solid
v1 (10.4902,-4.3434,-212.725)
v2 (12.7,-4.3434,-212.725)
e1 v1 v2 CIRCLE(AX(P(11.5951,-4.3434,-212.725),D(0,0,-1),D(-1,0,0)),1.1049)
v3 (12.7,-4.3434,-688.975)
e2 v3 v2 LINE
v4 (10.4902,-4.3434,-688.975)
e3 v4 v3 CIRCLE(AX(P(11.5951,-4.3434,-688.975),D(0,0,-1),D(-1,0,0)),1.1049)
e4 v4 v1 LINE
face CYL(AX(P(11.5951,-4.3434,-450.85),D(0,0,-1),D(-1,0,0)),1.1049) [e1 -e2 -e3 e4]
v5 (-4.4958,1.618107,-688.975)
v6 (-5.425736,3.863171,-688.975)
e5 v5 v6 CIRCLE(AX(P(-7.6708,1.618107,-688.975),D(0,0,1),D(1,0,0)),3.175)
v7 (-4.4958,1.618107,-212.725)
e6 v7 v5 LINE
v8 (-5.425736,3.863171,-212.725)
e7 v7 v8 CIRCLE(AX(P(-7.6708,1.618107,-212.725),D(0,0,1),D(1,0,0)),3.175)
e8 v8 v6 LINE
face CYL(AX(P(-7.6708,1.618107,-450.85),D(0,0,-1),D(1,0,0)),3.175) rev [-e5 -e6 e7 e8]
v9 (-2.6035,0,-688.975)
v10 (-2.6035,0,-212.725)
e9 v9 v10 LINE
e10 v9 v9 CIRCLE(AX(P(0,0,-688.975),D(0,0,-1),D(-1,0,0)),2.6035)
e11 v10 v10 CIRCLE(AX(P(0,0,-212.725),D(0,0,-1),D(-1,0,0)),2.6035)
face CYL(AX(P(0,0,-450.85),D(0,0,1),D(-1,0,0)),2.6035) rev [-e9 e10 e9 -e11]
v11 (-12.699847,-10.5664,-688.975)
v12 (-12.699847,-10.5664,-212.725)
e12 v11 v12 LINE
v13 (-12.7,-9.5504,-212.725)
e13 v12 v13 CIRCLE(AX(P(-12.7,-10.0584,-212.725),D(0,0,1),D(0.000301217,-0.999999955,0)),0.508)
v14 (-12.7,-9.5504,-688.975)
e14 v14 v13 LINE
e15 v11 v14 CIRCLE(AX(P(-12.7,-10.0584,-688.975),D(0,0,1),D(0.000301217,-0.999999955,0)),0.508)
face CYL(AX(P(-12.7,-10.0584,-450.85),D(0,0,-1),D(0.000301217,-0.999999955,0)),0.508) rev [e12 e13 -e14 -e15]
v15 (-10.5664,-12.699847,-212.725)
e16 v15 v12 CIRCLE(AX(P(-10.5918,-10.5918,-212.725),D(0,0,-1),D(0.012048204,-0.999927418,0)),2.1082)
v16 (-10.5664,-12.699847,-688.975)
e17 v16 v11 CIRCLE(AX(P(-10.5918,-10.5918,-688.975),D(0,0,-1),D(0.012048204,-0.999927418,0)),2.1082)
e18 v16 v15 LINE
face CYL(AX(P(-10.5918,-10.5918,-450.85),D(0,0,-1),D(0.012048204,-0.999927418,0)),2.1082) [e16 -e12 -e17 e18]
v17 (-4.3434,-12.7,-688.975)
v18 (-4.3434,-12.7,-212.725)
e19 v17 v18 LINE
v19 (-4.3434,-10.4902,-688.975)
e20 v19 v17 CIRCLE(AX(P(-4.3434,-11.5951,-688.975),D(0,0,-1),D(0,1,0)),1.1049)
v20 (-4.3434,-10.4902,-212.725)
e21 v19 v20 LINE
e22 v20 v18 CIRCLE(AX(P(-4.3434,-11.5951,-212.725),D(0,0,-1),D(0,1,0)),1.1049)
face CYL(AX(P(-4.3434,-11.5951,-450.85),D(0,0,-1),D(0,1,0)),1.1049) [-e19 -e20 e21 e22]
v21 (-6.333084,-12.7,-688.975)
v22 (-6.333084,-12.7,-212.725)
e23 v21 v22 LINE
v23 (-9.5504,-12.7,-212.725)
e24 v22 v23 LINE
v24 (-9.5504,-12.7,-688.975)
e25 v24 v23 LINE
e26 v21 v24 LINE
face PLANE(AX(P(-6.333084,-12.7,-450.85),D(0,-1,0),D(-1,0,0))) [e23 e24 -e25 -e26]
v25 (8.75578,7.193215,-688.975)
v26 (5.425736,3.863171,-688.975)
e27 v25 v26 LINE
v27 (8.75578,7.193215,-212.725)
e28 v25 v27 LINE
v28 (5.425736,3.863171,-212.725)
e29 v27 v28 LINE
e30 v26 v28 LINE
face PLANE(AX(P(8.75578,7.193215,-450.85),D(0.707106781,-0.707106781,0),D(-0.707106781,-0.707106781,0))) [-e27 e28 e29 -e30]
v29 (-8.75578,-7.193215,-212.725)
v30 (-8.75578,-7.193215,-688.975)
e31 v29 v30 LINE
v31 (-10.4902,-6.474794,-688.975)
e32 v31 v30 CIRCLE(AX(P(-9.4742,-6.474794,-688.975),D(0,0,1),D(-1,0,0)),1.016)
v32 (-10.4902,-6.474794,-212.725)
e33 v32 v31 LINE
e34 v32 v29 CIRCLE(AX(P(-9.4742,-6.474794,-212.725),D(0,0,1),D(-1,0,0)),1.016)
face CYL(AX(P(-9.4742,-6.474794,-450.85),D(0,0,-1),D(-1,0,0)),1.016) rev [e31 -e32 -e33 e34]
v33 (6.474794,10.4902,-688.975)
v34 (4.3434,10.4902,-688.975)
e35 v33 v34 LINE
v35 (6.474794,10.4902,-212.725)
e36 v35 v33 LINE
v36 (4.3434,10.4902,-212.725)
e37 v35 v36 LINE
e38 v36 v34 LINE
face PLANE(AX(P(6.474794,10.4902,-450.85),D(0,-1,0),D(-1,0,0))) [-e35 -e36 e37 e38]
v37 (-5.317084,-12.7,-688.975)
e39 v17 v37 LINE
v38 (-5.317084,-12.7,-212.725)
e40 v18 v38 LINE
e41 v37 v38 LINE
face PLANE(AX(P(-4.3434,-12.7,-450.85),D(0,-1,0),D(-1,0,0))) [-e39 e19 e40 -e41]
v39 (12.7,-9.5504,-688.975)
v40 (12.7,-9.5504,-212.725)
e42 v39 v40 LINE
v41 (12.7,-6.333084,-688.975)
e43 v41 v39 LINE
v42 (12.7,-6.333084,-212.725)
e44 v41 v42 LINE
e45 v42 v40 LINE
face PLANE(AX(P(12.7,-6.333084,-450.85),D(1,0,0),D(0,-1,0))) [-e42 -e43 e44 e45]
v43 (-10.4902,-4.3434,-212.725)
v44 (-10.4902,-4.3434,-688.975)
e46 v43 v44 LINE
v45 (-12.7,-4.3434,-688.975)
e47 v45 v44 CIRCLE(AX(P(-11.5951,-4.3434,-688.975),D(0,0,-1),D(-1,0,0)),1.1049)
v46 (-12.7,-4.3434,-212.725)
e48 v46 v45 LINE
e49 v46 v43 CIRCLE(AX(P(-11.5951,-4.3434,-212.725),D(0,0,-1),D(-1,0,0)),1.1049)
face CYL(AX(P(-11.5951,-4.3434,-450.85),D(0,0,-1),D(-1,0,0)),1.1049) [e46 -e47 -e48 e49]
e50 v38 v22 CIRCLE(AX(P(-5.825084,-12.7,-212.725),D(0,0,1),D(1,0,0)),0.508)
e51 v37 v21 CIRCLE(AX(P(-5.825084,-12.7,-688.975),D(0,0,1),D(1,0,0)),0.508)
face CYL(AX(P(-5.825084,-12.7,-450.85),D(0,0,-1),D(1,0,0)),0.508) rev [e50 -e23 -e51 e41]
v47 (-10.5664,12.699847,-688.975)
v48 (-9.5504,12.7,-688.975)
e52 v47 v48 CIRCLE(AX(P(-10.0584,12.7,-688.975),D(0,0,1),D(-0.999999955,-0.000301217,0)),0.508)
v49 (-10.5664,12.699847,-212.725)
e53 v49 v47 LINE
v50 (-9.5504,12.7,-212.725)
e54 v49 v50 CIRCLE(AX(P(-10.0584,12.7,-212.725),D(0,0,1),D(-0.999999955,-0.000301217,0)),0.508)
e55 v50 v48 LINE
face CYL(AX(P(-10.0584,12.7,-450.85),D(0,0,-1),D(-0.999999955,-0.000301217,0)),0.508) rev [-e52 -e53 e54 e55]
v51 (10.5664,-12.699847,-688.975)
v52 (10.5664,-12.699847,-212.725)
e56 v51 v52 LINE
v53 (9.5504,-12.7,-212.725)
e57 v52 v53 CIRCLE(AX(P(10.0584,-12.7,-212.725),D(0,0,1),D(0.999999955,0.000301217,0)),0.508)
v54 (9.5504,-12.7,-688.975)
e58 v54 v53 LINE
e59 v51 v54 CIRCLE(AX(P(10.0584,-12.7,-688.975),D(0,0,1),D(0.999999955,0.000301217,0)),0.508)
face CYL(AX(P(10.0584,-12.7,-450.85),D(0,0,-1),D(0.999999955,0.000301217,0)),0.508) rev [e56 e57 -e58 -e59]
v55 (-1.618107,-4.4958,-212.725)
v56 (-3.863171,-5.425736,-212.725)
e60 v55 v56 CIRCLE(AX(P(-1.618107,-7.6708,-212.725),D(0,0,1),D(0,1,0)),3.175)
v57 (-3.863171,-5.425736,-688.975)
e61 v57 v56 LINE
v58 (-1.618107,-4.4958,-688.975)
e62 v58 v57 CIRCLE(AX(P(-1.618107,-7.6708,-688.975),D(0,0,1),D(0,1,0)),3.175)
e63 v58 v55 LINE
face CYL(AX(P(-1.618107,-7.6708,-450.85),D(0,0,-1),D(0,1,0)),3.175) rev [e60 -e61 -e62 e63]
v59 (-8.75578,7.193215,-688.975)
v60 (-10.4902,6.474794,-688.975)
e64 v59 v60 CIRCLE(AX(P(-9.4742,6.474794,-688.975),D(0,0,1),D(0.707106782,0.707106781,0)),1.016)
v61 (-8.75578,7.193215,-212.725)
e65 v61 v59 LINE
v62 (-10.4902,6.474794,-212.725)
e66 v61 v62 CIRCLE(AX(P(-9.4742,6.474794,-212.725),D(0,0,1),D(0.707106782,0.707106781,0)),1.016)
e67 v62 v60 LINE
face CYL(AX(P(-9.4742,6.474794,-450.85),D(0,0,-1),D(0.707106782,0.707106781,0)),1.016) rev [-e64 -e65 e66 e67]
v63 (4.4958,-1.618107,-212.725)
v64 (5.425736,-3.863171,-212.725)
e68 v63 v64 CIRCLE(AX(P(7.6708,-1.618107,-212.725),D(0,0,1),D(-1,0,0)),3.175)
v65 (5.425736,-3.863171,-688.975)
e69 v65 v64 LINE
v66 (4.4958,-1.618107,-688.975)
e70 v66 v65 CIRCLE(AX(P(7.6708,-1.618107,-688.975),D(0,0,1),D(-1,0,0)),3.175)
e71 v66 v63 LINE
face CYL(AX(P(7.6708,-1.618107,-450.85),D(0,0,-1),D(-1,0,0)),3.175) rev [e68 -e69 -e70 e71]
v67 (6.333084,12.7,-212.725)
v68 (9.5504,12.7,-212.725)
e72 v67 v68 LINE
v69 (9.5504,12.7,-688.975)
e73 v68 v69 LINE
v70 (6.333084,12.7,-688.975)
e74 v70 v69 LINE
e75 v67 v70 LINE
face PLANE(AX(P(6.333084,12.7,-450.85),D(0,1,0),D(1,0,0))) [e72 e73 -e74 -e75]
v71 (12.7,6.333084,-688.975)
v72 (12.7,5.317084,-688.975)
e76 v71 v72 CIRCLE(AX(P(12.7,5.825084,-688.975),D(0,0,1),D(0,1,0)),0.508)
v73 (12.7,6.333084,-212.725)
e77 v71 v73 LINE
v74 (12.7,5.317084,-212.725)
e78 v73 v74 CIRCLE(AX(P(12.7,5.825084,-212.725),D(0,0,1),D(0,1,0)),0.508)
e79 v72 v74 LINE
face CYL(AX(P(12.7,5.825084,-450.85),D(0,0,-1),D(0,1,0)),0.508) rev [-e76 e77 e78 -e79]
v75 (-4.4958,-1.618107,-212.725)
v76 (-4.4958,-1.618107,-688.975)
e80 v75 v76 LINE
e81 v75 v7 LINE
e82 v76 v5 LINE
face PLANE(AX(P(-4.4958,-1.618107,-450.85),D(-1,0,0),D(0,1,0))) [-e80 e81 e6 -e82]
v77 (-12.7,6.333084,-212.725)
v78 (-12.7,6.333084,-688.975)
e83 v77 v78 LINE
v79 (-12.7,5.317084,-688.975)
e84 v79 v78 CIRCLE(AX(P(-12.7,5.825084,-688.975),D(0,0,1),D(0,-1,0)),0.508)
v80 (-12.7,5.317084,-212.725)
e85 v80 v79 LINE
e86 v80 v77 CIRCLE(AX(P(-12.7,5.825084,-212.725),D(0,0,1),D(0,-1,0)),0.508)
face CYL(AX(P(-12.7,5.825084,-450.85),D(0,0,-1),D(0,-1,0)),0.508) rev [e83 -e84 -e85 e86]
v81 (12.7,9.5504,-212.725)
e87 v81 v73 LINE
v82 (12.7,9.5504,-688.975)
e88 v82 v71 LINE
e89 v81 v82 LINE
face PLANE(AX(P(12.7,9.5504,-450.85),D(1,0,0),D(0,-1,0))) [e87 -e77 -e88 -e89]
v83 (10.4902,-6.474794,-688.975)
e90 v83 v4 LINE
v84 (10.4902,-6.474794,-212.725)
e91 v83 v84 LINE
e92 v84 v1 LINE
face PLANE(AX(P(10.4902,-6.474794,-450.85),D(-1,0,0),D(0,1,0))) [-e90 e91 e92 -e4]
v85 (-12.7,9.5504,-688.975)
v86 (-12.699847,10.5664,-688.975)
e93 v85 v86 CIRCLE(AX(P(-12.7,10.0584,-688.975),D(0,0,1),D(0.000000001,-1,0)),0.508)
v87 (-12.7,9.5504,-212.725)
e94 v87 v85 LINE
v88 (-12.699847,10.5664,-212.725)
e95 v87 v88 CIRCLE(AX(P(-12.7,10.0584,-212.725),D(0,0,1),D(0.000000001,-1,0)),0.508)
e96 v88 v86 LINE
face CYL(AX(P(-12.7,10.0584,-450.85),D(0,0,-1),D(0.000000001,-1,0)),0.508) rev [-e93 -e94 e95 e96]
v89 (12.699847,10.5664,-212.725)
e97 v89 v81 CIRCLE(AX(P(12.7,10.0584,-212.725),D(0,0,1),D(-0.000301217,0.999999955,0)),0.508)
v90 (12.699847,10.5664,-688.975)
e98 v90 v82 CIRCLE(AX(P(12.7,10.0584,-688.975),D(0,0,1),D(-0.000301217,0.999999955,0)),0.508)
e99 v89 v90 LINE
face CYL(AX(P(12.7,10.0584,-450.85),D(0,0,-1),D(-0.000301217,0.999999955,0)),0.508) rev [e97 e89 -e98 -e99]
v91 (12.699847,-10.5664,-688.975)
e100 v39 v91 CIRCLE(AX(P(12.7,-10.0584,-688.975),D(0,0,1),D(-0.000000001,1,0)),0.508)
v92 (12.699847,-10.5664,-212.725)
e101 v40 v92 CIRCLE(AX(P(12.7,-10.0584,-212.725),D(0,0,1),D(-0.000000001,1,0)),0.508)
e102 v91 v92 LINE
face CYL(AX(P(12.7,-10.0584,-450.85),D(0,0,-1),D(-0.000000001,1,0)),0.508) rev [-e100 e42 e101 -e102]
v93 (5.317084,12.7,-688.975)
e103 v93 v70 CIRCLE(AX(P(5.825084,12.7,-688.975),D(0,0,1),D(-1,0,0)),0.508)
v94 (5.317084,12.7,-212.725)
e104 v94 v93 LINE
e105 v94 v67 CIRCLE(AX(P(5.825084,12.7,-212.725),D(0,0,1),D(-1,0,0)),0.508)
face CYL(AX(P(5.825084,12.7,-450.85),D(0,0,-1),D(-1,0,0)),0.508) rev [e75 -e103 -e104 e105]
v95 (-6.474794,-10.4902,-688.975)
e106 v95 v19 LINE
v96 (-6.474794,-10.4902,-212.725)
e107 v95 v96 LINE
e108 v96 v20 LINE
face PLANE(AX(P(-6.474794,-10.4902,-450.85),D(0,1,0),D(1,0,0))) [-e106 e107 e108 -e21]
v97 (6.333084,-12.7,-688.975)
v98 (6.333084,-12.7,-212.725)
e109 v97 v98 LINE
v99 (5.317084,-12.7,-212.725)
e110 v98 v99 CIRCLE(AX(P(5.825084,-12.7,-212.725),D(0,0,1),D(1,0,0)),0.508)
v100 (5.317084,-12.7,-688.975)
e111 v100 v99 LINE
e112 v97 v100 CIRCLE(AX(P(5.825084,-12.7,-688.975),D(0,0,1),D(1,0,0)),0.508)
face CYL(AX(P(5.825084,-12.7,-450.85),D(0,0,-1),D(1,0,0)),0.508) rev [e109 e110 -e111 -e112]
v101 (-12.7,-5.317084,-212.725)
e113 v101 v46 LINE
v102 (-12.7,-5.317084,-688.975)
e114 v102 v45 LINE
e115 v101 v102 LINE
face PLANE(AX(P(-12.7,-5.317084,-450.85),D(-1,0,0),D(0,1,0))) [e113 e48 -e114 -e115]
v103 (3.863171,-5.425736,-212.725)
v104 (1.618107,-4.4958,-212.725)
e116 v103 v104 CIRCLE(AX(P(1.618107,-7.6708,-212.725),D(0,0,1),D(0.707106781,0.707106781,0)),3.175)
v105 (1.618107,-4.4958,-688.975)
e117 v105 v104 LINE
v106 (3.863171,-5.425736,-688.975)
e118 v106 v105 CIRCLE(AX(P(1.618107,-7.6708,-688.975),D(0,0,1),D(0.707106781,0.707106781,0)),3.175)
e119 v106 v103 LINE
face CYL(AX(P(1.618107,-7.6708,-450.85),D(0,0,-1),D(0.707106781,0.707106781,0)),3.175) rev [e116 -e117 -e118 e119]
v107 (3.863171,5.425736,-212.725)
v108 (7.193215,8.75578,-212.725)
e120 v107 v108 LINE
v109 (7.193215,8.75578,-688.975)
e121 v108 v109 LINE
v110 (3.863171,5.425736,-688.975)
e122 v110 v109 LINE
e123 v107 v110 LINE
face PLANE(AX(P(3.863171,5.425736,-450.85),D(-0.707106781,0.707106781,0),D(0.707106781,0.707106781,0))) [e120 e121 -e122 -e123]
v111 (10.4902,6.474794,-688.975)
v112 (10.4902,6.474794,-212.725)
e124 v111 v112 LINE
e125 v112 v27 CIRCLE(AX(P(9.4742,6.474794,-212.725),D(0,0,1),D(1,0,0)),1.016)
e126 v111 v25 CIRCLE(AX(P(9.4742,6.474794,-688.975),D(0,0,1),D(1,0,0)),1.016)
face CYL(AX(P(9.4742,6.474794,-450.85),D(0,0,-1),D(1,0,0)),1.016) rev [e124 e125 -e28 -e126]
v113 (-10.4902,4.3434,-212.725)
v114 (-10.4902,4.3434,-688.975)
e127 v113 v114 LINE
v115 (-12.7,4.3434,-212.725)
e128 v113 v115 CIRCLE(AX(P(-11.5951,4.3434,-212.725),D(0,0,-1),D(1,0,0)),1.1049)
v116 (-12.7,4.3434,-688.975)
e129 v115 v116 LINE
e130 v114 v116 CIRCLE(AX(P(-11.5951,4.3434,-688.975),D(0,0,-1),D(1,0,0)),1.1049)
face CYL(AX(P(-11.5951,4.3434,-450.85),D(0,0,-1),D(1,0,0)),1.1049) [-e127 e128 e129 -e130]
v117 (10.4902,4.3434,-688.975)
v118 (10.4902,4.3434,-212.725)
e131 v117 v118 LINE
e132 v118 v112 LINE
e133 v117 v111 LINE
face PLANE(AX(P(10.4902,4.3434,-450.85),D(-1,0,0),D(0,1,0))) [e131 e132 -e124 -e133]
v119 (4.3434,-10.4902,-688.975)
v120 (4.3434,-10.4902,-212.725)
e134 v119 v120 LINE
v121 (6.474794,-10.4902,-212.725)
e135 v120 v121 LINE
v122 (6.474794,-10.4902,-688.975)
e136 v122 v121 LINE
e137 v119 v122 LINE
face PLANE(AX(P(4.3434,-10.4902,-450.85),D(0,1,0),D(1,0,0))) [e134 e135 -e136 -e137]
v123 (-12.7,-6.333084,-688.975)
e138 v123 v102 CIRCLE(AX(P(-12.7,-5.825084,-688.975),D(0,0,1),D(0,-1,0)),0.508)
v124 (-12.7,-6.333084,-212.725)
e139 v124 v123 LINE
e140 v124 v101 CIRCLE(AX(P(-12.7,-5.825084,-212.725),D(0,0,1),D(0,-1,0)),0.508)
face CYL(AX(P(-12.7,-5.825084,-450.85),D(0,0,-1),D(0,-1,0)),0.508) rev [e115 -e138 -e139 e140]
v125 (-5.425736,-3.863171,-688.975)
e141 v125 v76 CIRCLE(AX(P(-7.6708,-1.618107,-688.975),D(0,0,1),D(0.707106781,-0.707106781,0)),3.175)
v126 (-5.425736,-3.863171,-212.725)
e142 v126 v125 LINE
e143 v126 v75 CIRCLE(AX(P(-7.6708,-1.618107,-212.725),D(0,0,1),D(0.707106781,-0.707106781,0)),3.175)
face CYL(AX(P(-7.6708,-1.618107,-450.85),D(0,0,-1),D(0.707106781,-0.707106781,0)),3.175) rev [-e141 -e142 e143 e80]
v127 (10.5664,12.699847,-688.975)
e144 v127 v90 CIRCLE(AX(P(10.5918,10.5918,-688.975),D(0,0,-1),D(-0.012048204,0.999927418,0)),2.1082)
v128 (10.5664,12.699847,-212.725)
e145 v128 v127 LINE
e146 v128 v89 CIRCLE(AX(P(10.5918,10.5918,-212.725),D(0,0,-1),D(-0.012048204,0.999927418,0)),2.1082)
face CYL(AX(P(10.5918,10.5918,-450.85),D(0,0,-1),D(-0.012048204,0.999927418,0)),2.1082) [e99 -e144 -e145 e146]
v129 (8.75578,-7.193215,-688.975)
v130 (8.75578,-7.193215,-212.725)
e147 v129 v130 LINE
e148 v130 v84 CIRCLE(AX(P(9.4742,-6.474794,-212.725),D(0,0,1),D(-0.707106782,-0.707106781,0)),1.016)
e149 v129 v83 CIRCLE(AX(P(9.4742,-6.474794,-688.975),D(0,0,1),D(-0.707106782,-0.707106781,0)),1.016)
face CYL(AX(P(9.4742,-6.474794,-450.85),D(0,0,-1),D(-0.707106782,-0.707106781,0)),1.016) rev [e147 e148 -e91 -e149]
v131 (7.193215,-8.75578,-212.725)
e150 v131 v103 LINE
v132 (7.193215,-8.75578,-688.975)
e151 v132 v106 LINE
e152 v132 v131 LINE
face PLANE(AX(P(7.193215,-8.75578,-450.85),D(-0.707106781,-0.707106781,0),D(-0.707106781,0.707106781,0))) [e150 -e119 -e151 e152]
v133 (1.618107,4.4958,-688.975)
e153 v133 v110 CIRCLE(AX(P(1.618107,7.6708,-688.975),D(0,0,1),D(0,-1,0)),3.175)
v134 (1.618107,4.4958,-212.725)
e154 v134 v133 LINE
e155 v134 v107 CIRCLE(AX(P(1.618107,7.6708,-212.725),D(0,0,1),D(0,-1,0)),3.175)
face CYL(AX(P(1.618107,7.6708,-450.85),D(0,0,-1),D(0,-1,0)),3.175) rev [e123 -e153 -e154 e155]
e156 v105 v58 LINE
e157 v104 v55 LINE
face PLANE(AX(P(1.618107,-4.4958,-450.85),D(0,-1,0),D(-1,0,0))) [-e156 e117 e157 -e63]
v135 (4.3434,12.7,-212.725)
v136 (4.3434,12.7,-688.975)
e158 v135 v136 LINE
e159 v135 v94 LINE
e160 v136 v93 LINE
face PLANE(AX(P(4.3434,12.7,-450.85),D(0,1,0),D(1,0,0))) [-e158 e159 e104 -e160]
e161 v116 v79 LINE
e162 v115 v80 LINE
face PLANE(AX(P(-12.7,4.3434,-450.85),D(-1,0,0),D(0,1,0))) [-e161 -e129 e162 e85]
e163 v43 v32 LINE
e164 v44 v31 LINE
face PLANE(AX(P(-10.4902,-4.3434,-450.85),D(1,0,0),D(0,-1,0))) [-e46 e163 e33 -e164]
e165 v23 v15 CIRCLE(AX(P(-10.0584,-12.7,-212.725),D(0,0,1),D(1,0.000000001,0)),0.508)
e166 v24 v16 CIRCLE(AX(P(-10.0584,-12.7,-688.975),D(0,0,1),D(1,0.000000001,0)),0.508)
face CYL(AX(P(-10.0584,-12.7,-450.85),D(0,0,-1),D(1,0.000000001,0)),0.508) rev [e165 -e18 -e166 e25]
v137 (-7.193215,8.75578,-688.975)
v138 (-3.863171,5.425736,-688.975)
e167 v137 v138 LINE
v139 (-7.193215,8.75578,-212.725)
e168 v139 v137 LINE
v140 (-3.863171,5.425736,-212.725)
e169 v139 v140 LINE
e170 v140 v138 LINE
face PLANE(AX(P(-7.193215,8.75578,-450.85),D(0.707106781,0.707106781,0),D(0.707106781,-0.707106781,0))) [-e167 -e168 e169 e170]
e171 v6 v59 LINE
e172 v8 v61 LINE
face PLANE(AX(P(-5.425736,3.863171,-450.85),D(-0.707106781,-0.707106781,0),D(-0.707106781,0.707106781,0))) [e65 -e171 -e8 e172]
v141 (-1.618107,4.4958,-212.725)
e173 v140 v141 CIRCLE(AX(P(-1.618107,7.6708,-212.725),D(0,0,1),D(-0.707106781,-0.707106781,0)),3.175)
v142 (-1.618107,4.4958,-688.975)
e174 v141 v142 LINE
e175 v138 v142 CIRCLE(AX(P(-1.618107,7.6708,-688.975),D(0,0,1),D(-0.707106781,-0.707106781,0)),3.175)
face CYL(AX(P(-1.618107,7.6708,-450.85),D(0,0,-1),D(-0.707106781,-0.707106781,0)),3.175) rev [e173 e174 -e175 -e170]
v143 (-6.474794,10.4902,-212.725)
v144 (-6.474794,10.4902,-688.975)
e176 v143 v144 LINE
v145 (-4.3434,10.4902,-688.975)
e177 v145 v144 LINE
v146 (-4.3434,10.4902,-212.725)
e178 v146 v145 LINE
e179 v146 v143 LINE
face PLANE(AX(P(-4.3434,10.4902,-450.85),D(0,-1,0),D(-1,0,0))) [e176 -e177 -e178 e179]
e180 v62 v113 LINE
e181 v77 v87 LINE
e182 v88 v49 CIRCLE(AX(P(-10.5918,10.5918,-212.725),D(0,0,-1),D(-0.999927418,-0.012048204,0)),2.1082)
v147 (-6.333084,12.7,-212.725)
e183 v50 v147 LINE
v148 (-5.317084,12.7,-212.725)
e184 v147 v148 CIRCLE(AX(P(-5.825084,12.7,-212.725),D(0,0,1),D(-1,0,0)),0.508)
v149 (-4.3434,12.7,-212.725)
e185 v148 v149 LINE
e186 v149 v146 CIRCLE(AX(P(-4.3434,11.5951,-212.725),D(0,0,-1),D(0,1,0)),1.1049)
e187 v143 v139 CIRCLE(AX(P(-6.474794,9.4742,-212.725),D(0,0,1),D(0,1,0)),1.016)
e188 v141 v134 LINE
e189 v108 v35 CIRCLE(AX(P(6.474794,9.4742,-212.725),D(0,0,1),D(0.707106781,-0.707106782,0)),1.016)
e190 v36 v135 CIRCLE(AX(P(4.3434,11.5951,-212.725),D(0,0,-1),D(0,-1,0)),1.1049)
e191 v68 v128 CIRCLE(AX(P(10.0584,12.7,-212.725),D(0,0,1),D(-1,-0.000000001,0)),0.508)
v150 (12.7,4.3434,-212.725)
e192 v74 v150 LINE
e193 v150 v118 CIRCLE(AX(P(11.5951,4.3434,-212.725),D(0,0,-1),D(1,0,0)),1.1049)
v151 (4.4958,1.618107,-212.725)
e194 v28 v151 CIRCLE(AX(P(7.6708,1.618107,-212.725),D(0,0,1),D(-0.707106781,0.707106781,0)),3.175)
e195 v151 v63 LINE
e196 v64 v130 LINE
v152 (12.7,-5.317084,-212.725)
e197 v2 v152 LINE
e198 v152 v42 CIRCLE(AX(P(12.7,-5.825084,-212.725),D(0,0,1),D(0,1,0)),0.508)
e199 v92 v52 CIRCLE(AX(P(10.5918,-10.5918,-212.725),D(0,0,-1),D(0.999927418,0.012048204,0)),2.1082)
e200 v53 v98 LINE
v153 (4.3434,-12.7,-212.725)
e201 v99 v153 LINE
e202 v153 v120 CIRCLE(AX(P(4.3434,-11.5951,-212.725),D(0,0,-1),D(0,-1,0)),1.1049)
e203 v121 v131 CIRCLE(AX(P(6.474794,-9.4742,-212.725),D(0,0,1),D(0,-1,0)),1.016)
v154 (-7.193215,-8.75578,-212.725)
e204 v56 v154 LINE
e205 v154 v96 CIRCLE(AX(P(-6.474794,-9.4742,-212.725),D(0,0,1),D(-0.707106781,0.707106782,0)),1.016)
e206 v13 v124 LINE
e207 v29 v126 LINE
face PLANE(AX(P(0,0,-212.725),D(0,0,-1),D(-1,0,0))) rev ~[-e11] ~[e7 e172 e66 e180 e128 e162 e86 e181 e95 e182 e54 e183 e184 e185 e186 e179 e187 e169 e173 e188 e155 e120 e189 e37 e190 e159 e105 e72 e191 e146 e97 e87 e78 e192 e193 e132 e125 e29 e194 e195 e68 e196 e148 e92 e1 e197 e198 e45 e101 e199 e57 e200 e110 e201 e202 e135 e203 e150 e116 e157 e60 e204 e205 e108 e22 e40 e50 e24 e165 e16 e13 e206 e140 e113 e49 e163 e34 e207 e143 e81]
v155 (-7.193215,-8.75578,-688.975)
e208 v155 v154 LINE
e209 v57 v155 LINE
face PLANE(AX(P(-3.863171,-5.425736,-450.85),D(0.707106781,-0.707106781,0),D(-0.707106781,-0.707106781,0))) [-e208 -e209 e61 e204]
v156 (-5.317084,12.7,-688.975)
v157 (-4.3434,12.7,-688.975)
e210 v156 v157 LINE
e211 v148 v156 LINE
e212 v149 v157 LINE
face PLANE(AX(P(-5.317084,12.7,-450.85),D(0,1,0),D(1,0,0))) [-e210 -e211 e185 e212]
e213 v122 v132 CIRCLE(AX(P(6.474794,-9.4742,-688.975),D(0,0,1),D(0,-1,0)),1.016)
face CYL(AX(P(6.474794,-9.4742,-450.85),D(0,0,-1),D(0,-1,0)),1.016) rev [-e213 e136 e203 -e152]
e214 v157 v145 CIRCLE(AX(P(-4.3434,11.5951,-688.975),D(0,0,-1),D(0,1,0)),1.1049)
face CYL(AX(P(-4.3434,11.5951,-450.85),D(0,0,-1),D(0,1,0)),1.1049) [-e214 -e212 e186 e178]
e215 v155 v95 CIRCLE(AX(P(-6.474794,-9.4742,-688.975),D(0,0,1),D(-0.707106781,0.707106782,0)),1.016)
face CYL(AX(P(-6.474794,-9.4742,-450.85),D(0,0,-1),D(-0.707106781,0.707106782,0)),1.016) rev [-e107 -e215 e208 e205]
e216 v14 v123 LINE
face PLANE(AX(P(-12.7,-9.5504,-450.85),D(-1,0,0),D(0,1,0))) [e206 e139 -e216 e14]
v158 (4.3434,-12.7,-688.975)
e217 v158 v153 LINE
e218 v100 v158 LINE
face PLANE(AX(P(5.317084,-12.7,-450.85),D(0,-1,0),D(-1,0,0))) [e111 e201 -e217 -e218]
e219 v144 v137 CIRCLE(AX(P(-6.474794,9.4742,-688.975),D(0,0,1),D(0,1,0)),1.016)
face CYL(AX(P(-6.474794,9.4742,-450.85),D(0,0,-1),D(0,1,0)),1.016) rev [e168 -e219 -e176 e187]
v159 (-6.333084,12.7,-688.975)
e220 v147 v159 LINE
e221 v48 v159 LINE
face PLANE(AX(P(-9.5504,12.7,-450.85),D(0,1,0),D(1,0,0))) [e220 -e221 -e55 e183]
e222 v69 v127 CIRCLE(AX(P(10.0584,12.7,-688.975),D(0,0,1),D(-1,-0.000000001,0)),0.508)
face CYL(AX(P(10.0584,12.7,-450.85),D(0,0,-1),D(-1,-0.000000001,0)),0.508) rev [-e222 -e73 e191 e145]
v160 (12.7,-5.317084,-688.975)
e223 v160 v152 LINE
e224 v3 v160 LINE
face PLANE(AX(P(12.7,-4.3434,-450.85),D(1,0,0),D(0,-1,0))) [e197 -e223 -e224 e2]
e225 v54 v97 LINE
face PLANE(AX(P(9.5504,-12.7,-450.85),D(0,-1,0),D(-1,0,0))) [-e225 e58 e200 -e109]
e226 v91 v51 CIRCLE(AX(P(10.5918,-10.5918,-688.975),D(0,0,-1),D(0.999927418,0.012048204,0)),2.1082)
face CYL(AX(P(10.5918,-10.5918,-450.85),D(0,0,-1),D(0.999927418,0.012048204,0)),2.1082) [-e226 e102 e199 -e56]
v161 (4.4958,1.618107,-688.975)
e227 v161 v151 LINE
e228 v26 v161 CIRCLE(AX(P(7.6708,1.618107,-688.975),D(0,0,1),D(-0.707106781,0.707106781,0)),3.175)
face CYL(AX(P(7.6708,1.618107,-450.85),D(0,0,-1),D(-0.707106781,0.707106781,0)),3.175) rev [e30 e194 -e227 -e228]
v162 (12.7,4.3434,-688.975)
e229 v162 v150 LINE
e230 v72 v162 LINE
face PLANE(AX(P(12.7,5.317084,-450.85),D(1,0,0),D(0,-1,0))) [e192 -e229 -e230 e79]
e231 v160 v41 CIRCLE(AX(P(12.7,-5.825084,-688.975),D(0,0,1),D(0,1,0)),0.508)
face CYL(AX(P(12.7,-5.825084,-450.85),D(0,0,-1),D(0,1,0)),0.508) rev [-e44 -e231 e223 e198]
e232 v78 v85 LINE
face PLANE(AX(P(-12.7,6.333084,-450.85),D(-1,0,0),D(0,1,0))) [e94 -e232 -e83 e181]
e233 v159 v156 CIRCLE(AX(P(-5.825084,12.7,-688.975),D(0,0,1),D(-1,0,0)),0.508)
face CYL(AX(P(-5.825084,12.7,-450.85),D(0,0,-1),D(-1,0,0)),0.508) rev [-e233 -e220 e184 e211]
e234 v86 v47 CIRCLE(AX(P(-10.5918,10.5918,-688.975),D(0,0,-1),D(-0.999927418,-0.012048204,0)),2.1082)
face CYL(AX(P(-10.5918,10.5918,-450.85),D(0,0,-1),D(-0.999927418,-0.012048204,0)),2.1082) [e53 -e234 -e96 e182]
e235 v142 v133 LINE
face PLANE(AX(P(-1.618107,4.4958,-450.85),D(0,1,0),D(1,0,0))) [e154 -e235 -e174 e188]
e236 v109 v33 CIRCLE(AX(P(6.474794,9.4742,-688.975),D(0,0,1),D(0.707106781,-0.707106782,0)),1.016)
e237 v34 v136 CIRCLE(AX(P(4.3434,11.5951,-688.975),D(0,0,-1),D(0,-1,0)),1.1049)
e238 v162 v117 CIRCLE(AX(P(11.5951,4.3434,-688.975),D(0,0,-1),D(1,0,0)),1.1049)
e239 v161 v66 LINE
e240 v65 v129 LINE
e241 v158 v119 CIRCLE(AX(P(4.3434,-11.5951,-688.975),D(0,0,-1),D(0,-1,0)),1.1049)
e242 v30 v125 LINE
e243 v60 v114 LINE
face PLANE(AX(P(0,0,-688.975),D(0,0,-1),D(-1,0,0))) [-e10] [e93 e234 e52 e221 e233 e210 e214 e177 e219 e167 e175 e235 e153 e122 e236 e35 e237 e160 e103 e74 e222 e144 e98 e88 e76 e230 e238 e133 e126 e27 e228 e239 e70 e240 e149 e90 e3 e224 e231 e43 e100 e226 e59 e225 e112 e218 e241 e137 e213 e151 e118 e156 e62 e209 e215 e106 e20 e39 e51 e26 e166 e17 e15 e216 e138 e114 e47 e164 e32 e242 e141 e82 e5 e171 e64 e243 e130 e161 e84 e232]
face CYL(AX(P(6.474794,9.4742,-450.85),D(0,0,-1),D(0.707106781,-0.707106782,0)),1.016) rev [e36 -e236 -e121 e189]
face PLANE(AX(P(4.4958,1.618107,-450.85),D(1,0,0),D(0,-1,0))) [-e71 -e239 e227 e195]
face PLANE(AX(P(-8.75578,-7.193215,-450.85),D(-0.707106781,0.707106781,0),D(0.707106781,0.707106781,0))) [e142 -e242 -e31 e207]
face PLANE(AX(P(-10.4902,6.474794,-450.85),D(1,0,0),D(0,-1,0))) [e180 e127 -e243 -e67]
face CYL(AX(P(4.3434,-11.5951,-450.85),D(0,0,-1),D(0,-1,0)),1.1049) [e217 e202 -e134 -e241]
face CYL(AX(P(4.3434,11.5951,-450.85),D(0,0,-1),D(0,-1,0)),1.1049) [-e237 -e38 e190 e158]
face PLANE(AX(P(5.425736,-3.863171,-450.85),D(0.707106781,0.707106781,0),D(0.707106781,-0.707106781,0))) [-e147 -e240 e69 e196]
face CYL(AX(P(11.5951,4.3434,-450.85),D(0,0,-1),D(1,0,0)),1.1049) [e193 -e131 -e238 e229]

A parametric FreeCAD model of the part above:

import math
import FreeCAD as App
import Part
import Sketcher
Q = App.Units.Quantity

doc = App.newDocument("Part")
body = doc.addObject("PartDesign::Body", "Body")

# Sketch on XY plane
sketch1 = body.newObject("Sketcher::SketchObject", "Sketch")
sketch1.AttachmentSupport = (doc.getObject("XY_Plane"), [""])
sketch1.MapMode = "FlatFace"
sketch1.AttachmentOffset = App.Placement(App.Vector(0, 0, -17.75 * 25.4), App.Rotation())
sketch1.addGeometry([
    Part.LineSegment(App.Vector(-12.7, -9.6, 0), App.Vector(-12.7, -6.3, 0)),  # 0
    Part.ArcOfCircle(Part.Circle(App.Vector(-12.7, -5.8, 0), App.Vector(0, 0, 1), 0.5), math.radians(-90), math.radians(90)),  # 1
    Part.LineSegment(App.Vector(-12.7, -5.3, 0), App.Vector(-12.7, -4.3, 0)),  # 2
    Part.ArcOfCircle(Part.Circle(App.Vector(-11.6, -4.3, 0), App.Vector(0, 0, 1), 1.1), math.radians(0), math.radians(180)),  # 3
    Part.LineSegment(App.Vector(-10.5, -4.3, 0), App.Vector(-10.5, -6.5, 0)),  # 4
    Part.ArcOfCircle(Part.Circle(App.Vector(-9.5, -6.5, 0), App.Vector(0, 0, 1), 1), math.radians(180), math.radians(315)),  # 5
    Part.LineSegment(App.Vector(-8.8, -7.2, 0), App.Vector(-5.4, -3.9, 0)),  # 6
    Part.ArcOfCircle(Part.Circle(App.Vector(-7.7, -1.6, 0), App.Vector(0, 0, 1), 3.2), math.radians(-45), math.radians(0)),  # 7
    Part.LineSegment(App.Vector(-4.5, -1.6, 0), App.Vector(-4.5, 1.6, 0)),  # 8
    Part.ArcOfCircle(Part.Circle(App.Vector(-7.7, 1.6, 0), App.Vector(0, 0, 1), 3.2), math.radians(0), math.radians(45)),  # 9
    Part.LineSegment(App.Vector(-5.4, 3.9, 0), App.Vector(-8.8, 7.2, 0)),  # 10
    Part.ArcOfCircle(Part.Circle(App.Vector(-9.5, 6.5, 0), App.Vector(0, 0, 1), 1), math.radians(45), math.radians(180)),  # 11
    Part.LineSegment(App.Vector(-10.5, 6.5, 0), App.Vector(-10.5, 4.3, 0)),  # 12
    Part.ArcOfCircle(Part.Circle(App.Vector(-11.6, 4.3, 0), App.Vector(0, 0, 1), 1.1), math.radians(180), math.radians(360)),  # 13
    Part.LineSegment(App.Vector(-12.7, 4.3, 0), App.Vector(-12.7, 5.3, 0)),  # 14
    Part.ArcOfCircle(Part.Circle(App.Vector(-12.7, 5.8, 0), App.Vector(0, 0, 1), 0.5), math.radians(-90), math.radians(90)),  # 15
    Part.LineSegment(App.Vector(-12.7, 6.3, 0), App.Vector(-12.7, 9.6, 0)),  # 16
    Part.ArcOfCircle(Part.Circle(App.Vector(-12.7, 10.1, 0), App.Vector(0, 0, 1), 0.5), math.radians(-90), math.radians(90)),  # 17
    Part.ArcOfCircle(Part.Circle(App.Vector(-10.6, 10.6, 0), App.Vector(0, 0, 1), 2.1), math.radians(89), math.radians(181)),  # 18
    Part.ArcOfCircle(Part.Circle(App.Vector(-10.1, 12.7, 0), App.Vector(0, 0, 1), 0.5), math.radians(-180), math.radians(0)),  # 19
    Part.LineSegment(App.Vector(-9.6, 12.7, 0), App.Vector(-6.3, 12.7, 0)),  # 20
    Part.ArcOfCircle(Part.Circle(App.Vector(-5.8, 12.7, 0), App.Vector(0, 0, 1), 0.5), math.radians(180), math.radians(360)),  # 21
    Part.LineSegment(App.Vector(-5.3, 12.7, 0), App.Vector(-4.3, 12.7, 0)),  # 22
    Part.ArcOfCircle(Part.Circle(App.Vector(-4.3, 11.6, 0), App.Vector(0, 0, 1), 1.1), math.radians(-90), math.radians(90)),  # 23
    Part.LineSegment(App.Vector(-4.3, 10.5, 0), App.Vector(-6.5, 10.5, 0)),  # 24
    Part.ArcOfCircle(Part.Circle(App.Vector(-6.5, 9.5, 0), App.Vector(0, 0, 1), 1), math.radians(90), math.radians(225)),  # 25
    Part.LineSegment(App.Vector(-7.2, 8.8, 0), App.Vector(-3.9, 5.4, 0)),  # 26
    Part.ArcOfCircle(Part.Circle(App.Vector(-1.6, 7.7, 0), App.Vector(0, 0, 1), 3.2), math.radians(-135), math.radians(-90)),  # 27
    Part.LineSegment(App.Vector(-1.6, 4.5, 0), App.Vector(1.6, 4.5, 0)),  # 28
    Part.ArcOfCircle(Part.Circle(App.Vector(1.6, 7.7, 0), App.Vector(0, 0, 1), 3.2), math.radians(-90), math.radians(-45)),  # 29
    Part.LineSegment(App.Vector(3.9, 5.4, 0), App.Vector(7.2, 8.8, 0)),  # 30
    Part.ArcOfCircle(Part.Circle(App.Vector(6.5, 9.5, 0), App.Vector(0, 0, 1), 1), math.radians(-45), math.radians(90)),  # 31
    Part.LineSegment(App.Vector(6.5, 10.5, 0), App.Vector(4.3, 10.5, 0)),  # 32
    Part.ArcOfCircle(Part.Circle(App.Vector(4.3, 11.6, 0), App.Vector(0, 0, 1), 1.1), math.radians(90), math.radians(270)),  # 33
    Part.LineSegment(App.Vector(4.3, 12.7, 0), App.Vector(5.3, 12.7, 0)),  # 34
    Part.ArcOfCircle(Part.Circle(App.Vector(5.8, 12.7, 0), App.Vector(0, 0, 1), 0.5), math.radians(180), math.radians(360)),  # 35
    Part.LineSegment(App.Vector(6.3, 12.7, 0), App.Vector(9.6, 12.7, 0)),  # 36
    Part.ArcOfCircle(Part.Circle(App.Vector(10.1, 12.7, 0), App.Vector(0, 0, 1), 0.5), math.radians(180), math.radians(360)),  # 37
    Part.ArcOfCircle(Part.Circle(App.Vector(10.6, 10.6, 0), App.Vector(0, 0, 1), 2.1), math.radians(-1), math.radians(91)),  # 38
    Part.ArcOfCircle(Part.Circle(App.Vector(12.7, 10.1, 0), App.Vector(0, 0, 1), 0.5), math.radians(90), math.radians(270)),  # 39
    Part.LineSegment(App.Vector(12.7, 9.6, 0), App.Vector(12.7, 6.3, 0)),  # 40
    Part.ArcOfCircle(Part.Circle(App.Vector(12.7, 5.8, 0), App.Vector(0, 0, 1), 0.5), math.radians(90), math.radians(270)),  # 41
    Part.LineSegment(App.Vector(12.7, 5.3, 0), App.Vector(12.7, 4.3, 0)),  # 42
    Part.ArcOfCircle(Part.Circle(App.Vector(11.6, 4.3, 0), App.Vector(0, 0, 1), 1.1), math.radians(180), math.radians(360)),  # 43
    Part.LineSegment(App.Vector(10.5, 4.3, 0), App.Vector(10.5, 6.5, 0)),  # 44
    Part.ArcOfCircle(Part.Circle(App.Vector(9.5, 6.5, 0), App.Vector(0, 0, 1), 1), math.radians(0), math.radians(135)),  # 45
    Part.LineSegment(App.Vector(8.8, 7.2, 0), App.Vector(5.4, 3.9, 0)),  # 46
    Part.ArcOfCircle(Part.Circle(App.Vector(7.7, 1.6, 0), App.Vector(0, 0, 1), 3.2), math.radians(135), math.radians(180)),  # 47
    Part.LineSegment(App.Vector(4.5, 1.6, 0), App.Vector(4.5, -1.6, 0)),  # 48
    Part.ArcOfCircle(Part.Circle(App.Vector(7.7, -1.6, 0), App.Vector(0, 0, 1), 3.2), math.radians(180), math.radians(225)),  # 49
    Part.LineSegment(App.Vector(5.4, -3.9, 0), App.Vector(8.8, -7.2, 0)),  # 50
    Part.ArcOfCircle(Part.Circle(App.Vector(9.5, -6.5, 0), App.Vector(0, 0, 1), 1), math.radians(-135), math.radians(0)),  # 51
    Part.LineSegment(App.Vector(10.5, -6.5, 0), App.Vector(10.5, -4.3, 0)),  # 52
    Part.ArcOfCircle(Part.Circle(App.Vector(11.6, -4.3, 0), App.Vector(0, 0, 1), 1.1), math.radians(0), math.radians(180)),  # 53
    Part.LineSegment(App.Vector(12.7, -4.3, 0), App.Vector(12.7, -5.3, 0)),  # 54
    Part.ArcOfCircle(Part.Circle(App.Vector(12.7, -5.8, 0), App.Vector(0, 0, 1), 0.5), math.radians(90), math.radians(270)),  # 55
    Part.LineSegment(App.Vector(12.7, -6.3, 0), App.Vector(12.7, -9.6, 0)),  # 56
    Part.ArcOfCircle(Part.Circle(App.Vector(12.7, -10.1, 0), App.Vector(0, 0, 1), 0.5), math.radians(90), math.radians(270)),  # 57
    Part.ArcOfCircle(Part.Circle(App.Vector(10.6, -10.6, 0), App.Vector(0, 0, 1), 2.1), math.radians(-91), math.radians(1)),  # 58
    Part.ArcOfCircle(Part.Circle(App.Vector(10.1, -12.7, 0), App.Vector(0, 0, 1), 0.5), math.radians(0), math.radians(180)),  # 59
    Part.LineSegment(App.Vector(9.6, -12.7, 0), App.Vector(6.3, -12.7, 0)),  # 60
    Part.ArcOfCircle(Part.Circle(App.Vector(5.8, -12.7, 0), App.Vector(0, 0, 1), 0.5), math.radians(0), math.radians(180)),  # 61
    Part.LineSegment(App.Vector(5.3, -12.7, 0), App.Vector(4.3, -12.7, 0)),  # 62
    Part.ArcOfCircle(Part.Circle(App.Vector(4.3, -11.6, 0), App.Vector(0, 0, 1), 1.1), math.radians(90), math.radians(270)),  # 63
    Part.LineSegment(App.Vector(4.3, -10.5, 0), App.Vector(6.5, -10.5, 0)),  # 64
    Part.ArcOfCircle(Part.Circle(App.Vector(6.5, -9.5, 0), App.Vector(0, 0, 1), 1), math.radians(-90), math.radians(45)),  # 65
    Part.LineSegment(App.Vector(7.2, -8.8, 0), App.Vector(3.9, -5.4, 0)),  # 66
    Part.ArcOfCircle(Part.Circle(App.Vector(1.6, -7.7, 0), App.Vector(0, 0, 1), 3.2), math.radians(45), math.radians(90)),  # 67
    Part.LineSegment(App.Vector(1.6, -4.5, 0), App.Vector(-1.6, -4.5, 0)),  # 68
    Part.ArcOfCircle(Part.Circle(App.Vector(-1.6, -7.7, 0), App.Vector(0, 0, 1), 3.2), math.radians(90), math.radians(135)),  # 69
    Part.LineSegment(App.Vector(-3.9, -5.4, 0), App.Vector(-7.2, -8.8, 0)),  # 70
    Part.ArcOfCircle(Part.Circle(App.Vector(-6.5, -9.5, 0), App.Vector(0, 0, 1), 1), math.radians(135), math.radians(270)),  # 71
    Part.LineSegment(App.Vector(-6.5, -10.5, 0), App.Vector(-4.3, -10.5, 0)),  # 72
    Part.ArcOfCircle(Part.Circle(App.Vector(-4.3, -11.6, 0), App.Vector(0, 0, 1), 1.1), math.radians(-90), math.radians(90)),  # 73
    Part.LineSegment(App.Vector(-4.3, -12.7, 0), App.Vector(-5.3, -12.7, 0)),  # 74
    Part.ArcOfCircle(Part.Circle(App.Vector(-5.8, -12.7, 0), App.Vector(0, 0, 1), 0.5), math.radians(0), math.radians(180)),  # 75
    Part.LineSegment(App.Vector(-6.3, -12.7, 0), App.Vector(-9.6, -12.7, 0)),  # 76
    Part.ArcOfCircle(Part.Circle(App.Vector(-10.1, -12.7, 0), App.Vector(0, 0, 1), 0.5), math.radians(0), math.radians(180)),  # 77
    Part.ArcOfCircle(Part.Circle(App.Vector(-10.6, -10.6, 0), App.Vector(0, 0, 1), 2.1), math.radians(179), math.radians(271)),  # 78
    Part.ArcOfCircle(Part.Circle(App.Vector(-12.7, -10.1, 0), App.Vector(0, 0, 1), 0.5), math.radians(-90), math.radians(90)),  # 79
    Part.Circle(App.Vector(0, 0, 0), App.Vector(0, 0, 1), 2.6),  # 80
], False)
sketch1.addConstraint([
    Sketcher.Constraint("Coincident", 0, 2, 1, 1),
    Sketcher.Constraint("Coincident", 1, 2, 2, 1),
    Sketcher.Constraint("Tangent", 2, 2, 3, 2),
    Sketcher.Constraint("Tangent", 3, 1, 4, 1),
    Sketcher.Constraint("Tangent", 4, 2, 5, 1),
    Sketcher.Constraint("Tangent", 5, 2, 6, 1),
    Sketcher.Constraint("Tangent", 6, 2, 7, 1),
    Sketcher.Constraint("Tangent", 7, 2, 8, 1),
    Sketcher.Constraint("Tangent", 8, 2, 9, 1),
    Sketcher.Constraint("Tangent", 9, 2, 10, 1),
    Sketcher.Constraint("Tangent", 10, 2, 11, 1),
    Sketcher.Constraint("Tangent", 11, 2, 12, 1),
    Sketcher.Constraint("Tangent", 12, 2, 13, 2),
    Sketcher.Constraint("Tangent", 13, 1, 14, 1),
    Sketcher.Constraint("Coincident", 14, 2, 15, 1),
    Sketcher.Constraint("Coincident", 15, 2, 16, 1),
    Sketcher.Constraint("Coincident", 16, 2, 17, 1),
    Sketcher.Constraint("Coincident", 17, 2, 18, 2),
    Sketcher.Constraint("Coincident", 18, 1, 19, 1),
    Sketcher.Constraint("Coincident", 19, 2, 20, 1),
    Sketcher.Constraint("Coincident", 20, 2, 21, 1),
    Sketcher.Constraint("Coincident", 21, 2, 22, 1),
    Sketcher.Constraint("Tangent", 22, 2, 23, 2),
    Sketcher.Constraint("Tangent", 23, 1, 24, 1),
    Sketcher.Constraint("Tangent", 24, 2, 25, 1),
    Sketcher.Constraint("Tangent", 25, 2, 26, 1),
    Sketcher.Constraint("Tangent", 26, 2, 27, 1),
    Sketcher.Constraint("Tangent", 27, 2, 28, 1),
    Sketcher.Constraint("Tangent", 28, 2, 29, 1),
    Sketcher.Constraint("Tangent", 29, 2, 30, 1),
    Sketcher.Constraint("Tangent", 30, 2, 31, 1),
    Sketcher.Constraint("Tangent", 31, 2, 32, 1),
    Sketcher.Constraint("Tangent", 32, 2, 33, 2),
    Sketcher.Constraint("Tangent", 33, 1, 34, 1),
    Sketcher.Constraint("Coincident", 34, 2, 35, 1),
    Sketcher.Constraint("Coincident", 35, 2, 36, 1),
    Sketcher.Constraint("Coincident", 36, 2, 37, 1),
    Sketcher.Constraint("Coincident", 37, 2, 38, 2),
    Sketcher.Constraint("Coincident", 38, 1, 39, 1),
    Sketcher.Constraint("Coincident", 39, 2, 40, 1),
    Sketcher.Constraint("Coincident", 40, 2, 41, 1),
    Sketcher.Constraint("Coincident", 41, 2, 42, 1),
    Sketcher.Constraint("Tangent", 42, 2, 43, 2),
    Sketcher.Constraint("Tangent", 43, 1, 44, 1),
    Sketcher.Constraint("Tangent", 44, 2, 45, 1),
    Sketcher.Constraint("Tangent", 45, 2, 46, 1),
    Sketcher.Constraint("Tangent", 46, 2, 47, 1),
    Sketcher.Constraint("Tangent", 47, 2, 48, 1),
    Sketcher.Constraint("Tangent", 48, 2, 49, 1),
    Sketcher.Constraint("Tangent", 49, 2, 50, 1),
    Sketcher.Constraint("Tangent", 50, 2, 51, 1),
    Sketcher.Constraint("Tangent", 51, 2, 52, 1),
    Sketcher.Constraint("Tangent", 52, 2, 53, 2),
    Sketcher.Constraint("Tangent", 53, 1, 54, 1),
    Sketcher.Constraint("Coincident", 54, 2, 55, 1),
    Sketcher.Constraint("Coincident", 55, 2, 56, 1),
    Sketcher.Constraint("Coincident", 56, 2, 57, 1),
    Sketcher.Constraint("Coincident", 57, 2, 58, 2),
    Sketcher.Constraint("Coincident", 58, 1, 59, 1),
    Sketcher.Constraint("Coincident", 59, 2, 60, 1),
    Sketcher.Constraint("Coincident", 60, 2, 61, 1),
    Sketcher.Constraint("Coincident", 61, 2, 62, 1),
    Sketcher.Constraint("Tangent", 62, 2, 63, 2),
    Sketcher.Constraint("Tangent", 63, 1, 64, 1),
    Sketcher.Constraint("Tangent", 64, 2, 65, 1),
    Sketcher.Constraint("Tangent", 65, 2, 66, 1),
    Sketcher.Constraint("Tangent", 66, 2, 67, 1),
    Sketcher.Constraint("Tangent", 67, 2, 68, 1),
    Sketcher.Constraint("Tangent", 68, 2, 69, 1),
    Sketcher.Constraint("Tangent", 69, 2, 70, 1),
    Sketcher.Constraint("Tangent", 70, 2, 71, 1),
    Sketcher.Constraint("Tangent", 71, 2, 72, 1),
    Sketcher.Constraint("Tangent", 72, 2, 73, 2),
    Sketcher.Constraint("Tangent", 73, 1, 74, 1),
    Sketcher.Constraint("Coincident", 74, 2, 75, 1),
    Sketcher.Constraint("Coincident", 75, 2, 76, 1),
    Sketcher.Constraint("Coincident", 76, 2, 77, 1),
    Sketcher.Constraint("Coincident", 77, 2, 78, 2),
    Sketcher.Constraint("Coincident", 78, 1, 79, 1),
    Sketcher.Constraint("Coincident", 79, 2, 0, 1),
    Sketcher.Constraint("Vertical", 0),
    Sketcher.Constraint("Vertical", 2),
    Sketcher.Constraint("Vertical", 4),
    Sketcher.Constraint("Vertical", 8),
    Sketcher.Constraint("Vertical", 12),
    Sketcher.Constraint("Vertical", 14),
    Sketcher.Constraint("Vertical", 16),
    Sketcher.Constraint("Horizontal", 20),
    Sketcher.Constraint("Horizontal", 22),
    Sketcher.Constraint("Horizontal", 24),
    Sketcher.Constraint("Horizontal", 28),
    Sketcher.Constraint("Horizontal", 32),
    Sketcher.Constraint("Horizontal", 34),
    Sketcher.Constraint("Horizontal", 36),
    Sketcher.Constraint("Vertical", 40),
    Sketcher.Constraint("Vertical", 42),
    Sketcher.Constraint("Vertical", 44),
    Sketcher.Constraint("Vertical", 48),
    Sketcher.Constraint("Vertical", 52),
    Sketcher.Constraint("Vertical", 54),
    Sketcher.Constraint("Vertical", 56),
    Sketcher.Constraint("Horizontal", 60),
    Sketcher.Constraint("Horizontal", 62),
    Sketcher.Constraint("Horizontal", 64),
    Sketcher.Constraint("Horizontal", 68),
    Sketcher.Constraint("Horizontal", 72),
    Sketcher.Constraint("Horizontal", 74),
    Sketcher.Constraint("Horizontal", 76),
    Sketcher.Constraint("Coincident", 80, 3, -1, 1),
    Sketcher.Constraint("Equal", 7, 9),
    Sketcher.Constraint("Equal", 5, 11),
    Sketcher.Constraint("Equal", 3, 13),
    Sketcher.Constraint("Equal", 1, 15),
    Sketcher.Constraint("Equal", 15, 17),
    Sketcher.Constraint("Equal", 17, 19),
    Sketcher.Constraint("Equal", 19, 21),
    Sketcher.Constraint("Equal", 13, 23),
    Sketcher.Constraint("Equal", 11, 25),
    Sketcher.Constraint("Equal", 9, 27),
    Sketcher.Constraint("Equal", 27, 29),
    Sketcher.Constraint("Equal", 25, 31),
    Sketcher.Constraint("Equal", 23, 33),
    Sketcher.Constraint("Equal", 21, 35),
    Sketcher.Constraint("Equal", 35, 37),
    Sketcher.Constraint("Equal", 18, 38),
    Sketcher.Constraint("Equal", 37, 39),
    Sketcher.Constraint("Equal", 39, 41),
    Sketcher.Constraint("Equal", 33, 43),
    Sketcher.Constraint("Equal", 31, 45),
    Sketcher.Constraint("Equal", 29, 47),
    Sketcher.Constraint("Equal", 47, 49),
    Sketcher.Constraint("Equal", 45, 51),
    Sketcher.Constraint("Equal", 43, 53),
    Sketcher.Constraint("Equal", 41, 55),
    Sketcher.Constraint("Equal", 55, 57),
    Sketcher.Constraint("Equal", 38, 58),
    Sketcher.Constraint("Equal", 57, 59),
    Sketcher.Constraint("Equal", 59, 61),
    Sketcher.Constraint("Equal", 53, 63),
    Sketcher.Constraint("Equal", 51, 65),
    Sketcher.Constraint("Equal", 49, 67),
    Sketcher.Constraint("Equal", 67, 69),
    Sketcher.Constraint("Equal", 65, 71),
    Sketcher.Constraint("Equal", 63, 73),
    Sketcher.Constraint("Equal", 61, 75),
    Sketcher.Constraint("Equal", 75, 77),
    Sketcher.Constraint("Equal", 58, 78),
    Sketcher.Constraint("Equal", 77, 79),
    Sketcher.Constraint("Symmetric", 1, 3, 41, 3, -1, 1),
    Sketcher.Constraint("Symmetric", 3, 3, 43, 3, -1, 1),
    Sketcher.Constraint("Symmetric", 7, 3, 47, 3, -1, 1),
    Sketcher.Constraint("Symmetric", 11, 3, 51, 3, -1, 1),
    Sketcher.Constraint("Symmetric", 15, 3, 55, 3, -1, 1),
    Sketcher.Constraint("Symmetric", 17, 3, 57, 3, -1, 1),
    Sketcher.Constraint("Symmetric", 18, 3, 58, 3, -1, 1),
    Sketcher.Constraint("Symmetric", 19, 3, 59, 3, -1, 1),
    Sketcher.Constraint("Symmetric", 21, 3, 61, 3, -1, 1),
    Sketcher.Constraint("Symmetric", 23, 3, 63, 3, -1, 1),
    Sketcher.Constraint("Symmetric", 27, 3, 67, 3, -1, 1),
    Sketcher.Constraint("Symmetric", 31, 3, 71, 3, -1, 1),
    Sketcher.Constraint("Symmetric", 35, 3, 75, 3, -1, 1),
    Sketcher.Constraint("Symmetric", 37, 3, 77, 3, -1, 1),
    Sketcher.Constraint("Symmetric", 38, 3, 78, 3, -1, 1),
    Sketcher.Constraint("Symmetric", 39, 3, 79, 3, -1, 1),
    Sketcher.Constraint("Symmetric", 25, 3, 31, 3, -2),
    Sketcher.Constraint("Symmetric", 21, 3, 35, 3, -2),
    Sketcher.Constraint("Symmetric", 19, 3, 37, 3, -2),
    Sketcher.Constraint("Symmetric", 18, 3, 38, 3, -2),
    Sketcher.Constraint("Symmetric", 17, 3, 39, 3, -2),
    Sketcher.Constraint("Symmetric", 15, 3, 41, 3, -2),
    Sketcher.Constraint("Symmetric", 13, 3, 43, 3, -2),
    Sketcher.Constraint("Symmetric", 10, 2, 45, 2, -2),
    Sketcher.Constraint("Symmetric", 6, 2, 49, 2, -2),
    Sketcher.Constraint("Symmetric", 66, 2, 69, 2, -2),
    Sketcher.Constraint("Perpendicular", 6, 10),
    Sketcher.Constraint("Parallel", 10, 26),
    Sketcher.Constraint("Perpendicular", 26, 30),
    Sketcher.Constraint("Horizontal", 19, 3, 21, 3),
    Sketcher.Constraint("Horizontal", 3, 3, 53, 3),
    Sketcher.Constraint("Horizontal", 37, 3, 19, 2),
    Sketcher.Constraint("Horizontal", 20, 2, 21, 2),
    Sketcher.Constraint("Horizontal", 34, 2, 35, 2),
    Sketcher.Constraint("Horizontal", 77, 3, 59, 2),
    Sketcher.Constraint("Horizontal", 74, 2, 75, 2),
    Sketcher.Constraint("Vertical", 15, 3, 17, 3),
    Sketcher.Constraint("Vertical", 33, 3, 63, 3),
    Sketcher.Constraint("Vertical", 23, 3, 73, 3),
    Sketcher.Constraint("Vertical", 79, 3, 0, 2),
    Sketcher.Constraint("Vertical", 0, 2, 1, 2),
    Sketcher.Constraint("Vertical", 14, 2, 15, 2),
    Sketcher.Constraint("Vertical", 57, 3, 39, 2),
    Sketcher.Constraint("Vertical", 54, 2, 55, 2),
    Sketcher.Constraint("Equal", 76, 0),
    Sketcher.Constraint("Equal", 74, 2),
    Sketcher.Constraint("Equal", 72, 4),
    Sketcher.Constraint("Equal", 68, 8),
    Sketcher.Constraint("Equal", 10, 26),
    Sketcher.Constraint("Radius", 1, Q("0.02 in")),
    Sketcher.Constraint("Radius", 5, Q("0.04 in")),
    Sketcher.Constraint("Diameter", 80, Q("0.205 in")),
    Sketcher.Constraint("Radius", 7, Q("0.125 in")),
    Sketcher.Constraint("Radius", 18, Q("0.083 in")),
    Sketcher.Constraint("DistanceX", 1, 3, -1, 1, Q("0.5 in")),
    Sketcher.Constraint("DistanceY", -1, 1, 19, 3, Q("0.5 in")),
    Sketcher.Constraint("Radius", 3, Q("0.0435 in")),
    Sketcher.Constraint("DistanceY", 3, 3, -1, 1, Q("0.171 in")),
    Sketcher.Constraint("DistanceX", 7, 3, -1, 1, Q("0.302 in")),
    Sketcher.Constraint("DistanceY", -1, 1, 17, 3, Q("0.396 in")),
    Sketcher.Constraint("DistanceX", 18, 3, -1, 1, Q("0.417 in")),
    Sketcher.Constraint("DistanceY", -1, 1, 18, 3, Q("0.417 in")),
    Sketcher.Constraint("DistanceX", 20, 1, 20, 2, Q("3.217316 mm")),
    Sketcher.Constraint("DistanceX", 24, 2, 24, 1, Q("2.131394 mm")),
])
pad1 = body.newObject("PartDesign::Pad", "Pad")
pad1.Profile = sketch1
pad1.Length = Q("18.75 in")
pad1.Midplane = True

doc.recompute()
